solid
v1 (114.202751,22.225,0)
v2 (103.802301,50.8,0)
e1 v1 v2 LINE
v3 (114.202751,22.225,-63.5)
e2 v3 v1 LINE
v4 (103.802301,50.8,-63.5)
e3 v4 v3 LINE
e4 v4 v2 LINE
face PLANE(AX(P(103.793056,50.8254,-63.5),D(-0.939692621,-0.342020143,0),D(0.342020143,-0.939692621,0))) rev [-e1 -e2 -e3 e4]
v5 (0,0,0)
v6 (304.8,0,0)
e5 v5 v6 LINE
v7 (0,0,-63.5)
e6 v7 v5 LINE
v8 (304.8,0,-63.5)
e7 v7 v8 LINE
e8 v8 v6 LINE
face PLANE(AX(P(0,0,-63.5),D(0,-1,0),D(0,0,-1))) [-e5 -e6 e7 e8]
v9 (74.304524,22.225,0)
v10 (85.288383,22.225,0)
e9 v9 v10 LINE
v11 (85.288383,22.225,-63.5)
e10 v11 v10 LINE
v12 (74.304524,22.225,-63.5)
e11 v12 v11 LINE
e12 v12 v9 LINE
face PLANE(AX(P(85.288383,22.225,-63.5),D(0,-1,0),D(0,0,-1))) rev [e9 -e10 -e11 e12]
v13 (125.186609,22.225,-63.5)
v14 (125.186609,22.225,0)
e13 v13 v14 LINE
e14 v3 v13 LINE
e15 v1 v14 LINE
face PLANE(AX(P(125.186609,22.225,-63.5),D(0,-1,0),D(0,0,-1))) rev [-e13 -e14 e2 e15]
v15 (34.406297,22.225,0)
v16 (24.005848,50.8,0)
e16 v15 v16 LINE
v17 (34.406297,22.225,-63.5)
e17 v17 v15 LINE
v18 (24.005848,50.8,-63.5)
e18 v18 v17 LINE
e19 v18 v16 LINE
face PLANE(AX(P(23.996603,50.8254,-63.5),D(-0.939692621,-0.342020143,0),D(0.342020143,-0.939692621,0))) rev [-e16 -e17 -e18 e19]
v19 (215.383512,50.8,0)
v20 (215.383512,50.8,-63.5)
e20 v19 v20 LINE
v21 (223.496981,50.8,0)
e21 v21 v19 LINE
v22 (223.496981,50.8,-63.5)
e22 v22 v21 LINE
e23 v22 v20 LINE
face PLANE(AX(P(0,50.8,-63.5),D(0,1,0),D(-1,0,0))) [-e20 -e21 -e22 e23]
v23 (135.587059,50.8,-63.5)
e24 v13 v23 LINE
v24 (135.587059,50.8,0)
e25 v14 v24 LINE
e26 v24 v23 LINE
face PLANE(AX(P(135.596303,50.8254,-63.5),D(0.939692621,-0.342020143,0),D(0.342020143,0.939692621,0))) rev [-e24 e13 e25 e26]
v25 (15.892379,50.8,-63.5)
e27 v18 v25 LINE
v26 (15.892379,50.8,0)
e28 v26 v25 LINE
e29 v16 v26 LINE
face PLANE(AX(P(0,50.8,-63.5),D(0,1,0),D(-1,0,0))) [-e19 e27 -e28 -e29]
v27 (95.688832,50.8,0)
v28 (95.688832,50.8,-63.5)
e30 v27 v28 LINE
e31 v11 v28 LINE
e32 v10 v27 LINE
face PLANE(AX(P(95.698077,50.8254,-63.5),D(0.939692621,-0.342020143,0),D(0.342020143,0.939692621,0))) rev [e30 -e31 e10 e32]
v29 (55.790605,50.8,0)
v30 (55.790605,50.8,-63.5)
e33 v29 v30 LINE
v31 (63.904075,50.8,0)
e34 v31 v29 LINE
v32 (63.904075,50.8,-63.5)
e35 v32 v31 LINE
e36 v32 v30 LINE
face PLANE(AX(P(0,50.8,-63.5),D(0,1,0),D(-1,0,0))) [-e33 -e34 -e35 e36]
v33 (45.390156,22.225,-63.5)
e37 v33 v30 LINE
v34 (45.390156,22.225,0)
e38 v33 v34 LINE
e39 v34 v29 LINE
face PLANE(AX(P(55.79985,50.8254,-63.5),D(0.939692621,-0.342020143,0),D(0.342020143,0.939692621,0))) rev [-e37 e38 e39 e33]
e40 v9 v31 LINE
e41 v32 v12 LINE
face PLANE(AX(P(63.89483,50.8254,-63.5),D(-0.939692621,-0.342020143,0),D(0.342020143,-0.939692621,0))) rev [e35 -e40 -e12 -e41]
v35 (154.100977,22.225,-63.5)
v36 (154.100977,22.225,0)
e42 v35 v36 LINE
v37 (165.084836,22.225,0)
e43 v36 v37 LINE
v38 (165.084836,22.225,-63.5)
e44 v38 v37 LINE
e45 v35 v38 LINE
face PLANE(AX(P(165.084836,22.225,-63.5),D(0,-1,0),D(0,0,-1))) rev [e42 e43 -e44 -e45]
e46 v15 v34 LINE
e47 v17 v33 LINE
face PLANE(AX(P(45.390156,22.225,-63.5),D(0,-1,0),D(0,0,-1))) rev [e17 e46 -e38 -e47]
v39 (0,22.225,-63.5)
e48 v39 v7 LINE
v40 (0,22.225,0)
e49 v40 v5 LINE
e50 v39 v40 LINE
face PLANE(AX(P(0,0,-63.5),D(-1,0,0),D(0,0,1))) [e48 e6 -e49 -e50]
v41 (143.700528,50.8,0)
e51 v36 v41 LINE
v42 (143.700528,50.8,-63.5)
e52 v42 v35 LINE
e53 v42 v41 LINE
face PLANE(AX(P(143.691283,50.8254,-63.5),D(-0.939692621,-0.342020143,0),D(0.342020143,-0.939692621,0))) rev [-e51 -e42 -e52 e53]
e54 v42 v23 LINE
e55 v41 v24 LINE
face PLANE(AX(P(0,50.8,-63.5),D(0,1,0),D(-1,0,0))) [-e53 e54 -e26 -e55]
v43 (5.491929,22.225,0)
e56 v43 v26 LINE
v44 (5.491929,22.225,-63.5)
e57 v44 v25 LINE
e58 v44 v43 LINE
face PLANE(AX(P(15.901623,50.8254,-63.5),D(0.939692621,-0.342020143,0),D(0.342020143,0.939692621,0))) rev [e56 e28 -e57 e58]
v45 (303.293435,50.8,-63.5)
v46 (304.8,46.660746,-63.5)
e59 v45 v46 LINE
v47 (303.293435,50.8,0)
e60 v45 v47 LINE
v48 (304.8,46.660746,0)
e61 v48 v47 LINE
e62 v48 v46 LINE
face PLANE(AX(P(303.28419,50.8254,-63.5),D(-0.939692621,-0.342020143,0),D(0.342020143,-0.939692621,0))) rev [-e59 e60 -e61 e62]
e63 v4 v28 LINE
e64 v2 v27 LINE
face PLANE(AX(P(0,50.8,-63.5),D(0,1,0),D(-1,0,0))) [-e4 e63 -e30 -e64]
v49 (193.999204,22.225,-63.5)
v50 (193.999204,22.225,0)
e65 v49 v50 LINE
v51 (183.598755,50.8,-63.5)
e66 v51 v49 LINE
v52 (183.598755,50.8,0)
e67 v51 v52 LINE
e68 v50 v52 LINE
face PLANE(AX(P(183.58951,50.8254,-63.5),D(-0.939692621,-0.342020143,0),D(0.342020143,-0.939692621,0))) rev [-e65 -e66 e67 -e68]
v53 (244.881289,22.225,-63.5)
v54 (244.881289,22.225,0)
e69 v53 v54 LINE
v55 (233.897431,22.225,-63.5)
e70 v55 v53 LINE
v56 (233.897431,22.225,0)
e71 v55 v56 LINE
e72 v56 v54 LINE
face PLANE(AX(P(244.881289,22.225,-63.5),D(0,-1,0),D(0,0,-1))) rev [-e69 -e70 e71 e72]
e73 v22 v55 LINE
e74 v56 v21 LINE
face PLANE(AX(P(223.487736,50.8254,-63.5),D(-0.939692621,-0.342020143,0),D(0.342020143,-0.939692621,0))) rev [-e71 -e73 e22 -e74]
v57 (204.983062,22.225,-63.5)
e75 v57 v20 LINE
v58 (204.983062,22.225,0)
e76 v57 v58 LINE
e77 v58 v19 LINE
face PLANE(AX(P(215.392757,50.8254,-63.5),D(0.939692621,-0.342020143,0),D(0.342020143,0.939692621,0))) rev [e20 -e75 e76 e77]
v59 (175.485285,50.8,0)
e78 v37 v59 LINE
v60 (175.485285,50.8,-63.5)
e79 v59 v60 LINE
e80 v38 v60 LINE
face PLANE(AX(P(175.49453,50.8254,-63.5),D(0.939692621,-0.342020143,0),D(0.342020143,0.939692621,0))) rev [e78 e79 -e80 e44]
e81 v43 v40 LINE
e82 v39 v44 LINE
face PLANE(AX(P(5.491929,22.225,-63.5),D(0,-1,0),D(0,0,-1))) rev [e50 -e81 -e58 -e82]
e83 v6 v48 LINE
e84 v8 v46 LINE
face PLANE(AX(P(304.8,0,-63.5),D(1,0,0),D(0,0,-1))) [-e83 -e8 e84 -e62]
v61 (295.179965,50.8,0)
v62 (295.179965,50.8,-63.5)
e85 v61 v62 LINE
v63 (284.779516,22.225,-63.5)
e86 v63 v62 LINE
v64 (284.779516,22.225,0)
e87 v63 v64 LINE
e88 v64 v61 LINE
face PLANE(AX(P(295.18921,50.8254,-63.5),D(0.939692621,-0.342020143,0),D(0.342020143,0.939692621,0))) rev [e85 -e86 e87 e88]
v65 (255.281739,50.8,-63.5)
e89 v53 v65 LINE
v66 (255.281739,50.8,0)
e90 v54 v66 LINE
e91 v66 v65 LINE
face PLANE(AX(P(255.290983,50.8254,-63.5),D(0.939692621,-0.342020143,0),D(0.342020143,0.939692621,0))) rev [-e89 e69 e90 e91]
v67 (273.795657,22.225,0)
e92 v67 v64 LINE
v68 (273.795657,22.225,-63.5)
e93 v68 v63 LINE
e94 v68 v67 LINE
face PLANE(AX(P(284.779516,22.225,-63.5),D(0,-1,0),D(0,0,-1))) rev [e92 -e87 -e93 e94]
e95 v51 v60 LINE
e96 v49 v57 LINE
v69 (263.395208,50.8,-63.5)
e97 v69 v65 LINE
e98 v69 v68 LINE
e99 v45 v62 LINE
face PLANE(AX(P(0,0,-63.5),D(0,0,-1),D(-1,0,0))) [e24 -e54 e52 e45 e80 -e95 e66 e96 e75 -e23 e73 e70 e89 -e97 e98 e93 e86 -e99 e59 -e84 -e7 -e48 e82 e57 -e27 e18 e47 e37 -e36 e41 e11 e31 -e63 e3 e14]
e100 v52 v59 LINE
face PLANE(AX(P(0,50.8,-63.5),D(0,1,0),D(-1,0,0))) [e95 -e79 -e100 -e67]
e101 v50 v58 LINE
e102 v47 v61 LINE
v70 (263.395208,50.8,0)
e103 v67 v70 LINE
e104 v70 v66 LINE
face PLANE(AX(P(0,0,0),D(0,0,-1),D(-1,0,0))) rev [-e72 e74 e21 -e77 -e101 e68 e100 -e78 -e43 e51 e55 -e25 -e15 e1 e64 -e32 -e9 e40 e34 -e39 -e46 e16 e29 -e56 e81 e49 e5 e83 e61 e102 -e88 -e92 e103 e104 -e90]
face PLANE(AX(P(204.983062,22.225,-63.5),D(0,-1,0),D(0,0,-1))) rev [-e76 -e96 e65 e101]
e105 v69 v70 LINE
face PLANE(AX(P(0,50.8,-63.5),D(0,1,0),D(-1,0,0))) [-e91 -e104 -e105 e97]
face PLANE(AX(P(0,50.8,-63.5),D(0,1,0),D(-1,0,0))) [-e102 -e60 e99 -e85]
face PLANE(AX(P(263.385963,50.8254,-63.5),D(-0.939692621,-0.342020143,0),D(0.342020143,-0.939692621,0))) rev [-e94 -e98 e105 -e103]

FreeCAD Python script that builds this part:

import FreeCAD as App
import Part
import Sketcher
from FreeCAD import Vector
Q = App.Units.Quantity


def add_polygon(sketch, points):
    """Adds a closed chain of lines whose ends are joined by coincident constraints."""
    first, n = sketch.GeometryCount, len(points)
    for a, b in zip(points, points[1:] + points[:1]):
        sketch.addGeometry(Part.LineSegment(App.Vector(*a, 0), App.Vector(*b, 0)), False)
    for i in range(n):
        sketch.addConstraint(Sketcher.Constraint("Coincident", first + i, 2, first + (i + 1) % n, 1))

doc = App.newDocument("Part")
body = doc.addObject("PartDesign::Body", "Body")

# Sketch on XY plane
sketch1 = body.newObject("Sketcher::SketchObject", "Sketch")
sketch1.AttachmentSupport = (doc.getObject("XY_Plane"), [""])
sketch1.MapMode = "FlatFace"
add_polygon(sketch1, [(0, 51), (0, 0), (305, 0), (305, 51)])  # lines 0-3
sketch1.addConstraint(Sketcher.Constraint("Vertical", 0))
sketch1.addConstraint(Sketcher.Constraint("Horizontal", 1))
sketch1.addConstraint(Sketcher.Constraint("Vertical", 2))
sketch1.addConstraint(Sketcher.Constraint("Horizontal", 3))
sketch1.addConstraint(Sketcher.Constraint("Coincident", 0, 2, -1, 1))
sketch1.addConstraint(Sketcher.Constraint("DistanceX", 1, 1, 1, 2, Q("12 in")))
sketch1.addConstraint(Sketcher.Constraint("DistanceY", 0, 2, 0, 1, Q("2 in")))
pad1 = body.newObject("PartDesign::Pad", "Pad")
pad1.Profile = sketch1
pad1.Length = Q("2.5 in")
pad1.Reversed = True

# Sketch on XY plane
sketch2 = body.newObject("Sketcher::SketchObject", "Sketch001")
sketch2.AttachmentSupport = (doc.getObject("XY_Plane"), [""])
sketch2.MapMode = "FlatFace"
add_polygon(sketch2, [(-5, 22), (5, 22), (16, 51), (-16, 51)])  # lines 0-3
sketch2.addConstraint(Sketcher.Constraint("Horizontal", 0))
sketch2.addConstraint(Sketcher.Constraint("Horizontal", 2))
sketch2.addConstraint(Sketcher.Constraint("Equal", 1, 3))
sketch2.addConstraint(Sketcher.Constraint("Angle", 1, Q("70 deg")))
sketch2.addConstraint(Sketcher.Constraint("DistanceY", -1, 1, 0, 2, Q("0.875 in")))
sketch2.addConstraint(Sketcher.Constraint("DistanceY", -1, 1, 1, 2, Q("2.001 in")))
sketch2.addConstraint(Sketcher.Constraint("DistanceX", 0, 1, 0, 2, Q("10.983858 mm")))
sketch2.addConstraint(Sketcher.Constraint("DistanceX", -1, 1, 0, 2, Q("5.491929 mm")))
pocket1 = body.newObject("PartDesign::Pocket", "Pocket")
pocket1.Profile = sketch2
pocket1.Type = "ThroughAll"
doc.recompute()

linearpattern = body.newObject("PartDesign::LinearPattern", "LinearPattern")
linearpattern.Originals = [pocket1]
linearpattern.Direction = (doc.getObject("X_Axis"), [""])
linearpattern.Mode = "offset"
linearpattern.Offset = 39.898227
linearpattern.Occurrences = 9
body.Tip = linearpattern

doc.recompute()
